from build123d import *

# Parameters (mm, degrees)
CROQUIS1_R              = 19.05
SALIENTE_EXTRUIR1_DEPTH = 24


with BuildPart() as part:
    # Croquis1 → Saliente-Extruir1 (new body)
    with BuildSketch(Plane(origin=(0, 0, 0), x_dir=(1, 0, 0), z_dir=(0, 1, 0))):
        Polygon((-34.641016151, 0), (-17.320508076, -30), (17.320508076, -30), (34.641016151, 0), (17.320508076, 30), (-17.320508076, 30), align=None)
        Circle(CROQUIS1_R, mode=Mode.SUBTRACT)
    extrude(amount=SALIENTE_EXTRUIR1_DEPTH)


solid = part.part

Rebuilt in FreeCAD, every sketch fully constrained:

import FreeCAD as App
import Part
import Sketcher
from FreeCAD import Vector
Q = App.Units.Quantity


def add_polygon(sketch, points):
    """Adds a closed chain of lines whose ends are joined by coincident constraints."""
    first, n = sketch.GeometryCount, len(points)
    for a, b in zip(points, points[1:] + points[:1]):
        sketch.addGeometry(Part.LineSegment(App.Vector(*a, 0), App.Vector(*b, 0)), False)
    for i in range(n):
        sketch.addConstraint(Sketcher.Constraint("Coincident", first + i, 2, first + (i + 1) % n, 1))

doc = App.newDocument("Part")
params = doc.addObject("Spreadsheet::Sheet", "Params")
for row, (alias, value) in enumerate([
    ("sketch1_diameter", "38.1 mm"),
    ("pad1_length", "24 mm"),
], start=1):
    params.set(f"A{row}", alias)
    params.set(f"B{row}", "=" + value)
    params.setAlias(f"B{row}", alias)

body = doc.addObject("PartDesign::Body", "Body")

# Sketch on XZ plane
sketch1 = body.newObject("Sketcher::SketchObject", "Sketch")
sketch1.AttachmentSupport = (doc.getObject("XZ_Plane"), [""])
sketch1.MapMode = "FlatFace"
add_polygon(sketch1, [(-35, 0), (-17, 30), (17, 30), (35, 0), (17, -30), (-17, -30)])  # lines 0-5
sketch1.addGeometry(Part.Circle(Vector(0, 0, 0), Vector(0, 0, 1), 19), False)  # 6
sketch1.addConstraint(Sketcher.Constraint("Horizontal", 1))
sketch1.addConstraint(Sketcher.Constraint("Horizontal", 4))
sketch1.addConstraint(Sketcher.Constraint("Coincident", 6, 3, -1, 1))
sketch1.addConstraint(Sketcher.Constraint("Symmetric", 0, 2, 3, 2, -1, 1))
sketch1.addConstraint(Sketcher.Constraint("Symmetric", 2, 2, 5, 2, -1, 1))
sketch1.addConstraint(Sketcher.Constraint("PointOnObject", 2, 2, -1))
sketch1.addConstraint(Sketcher.Constraint("Parallel", 2, 5))
sketch1.addConstraint(Sketcher.Constraint("Vertical", 1, 2, 3, 2))
sketch1.addConstraint(Sketcher.Constraint("Diameter", 6, 38.1))
sketch1.addConstraint(Sketcher.Constraint("Angle", 0, Q("60 deg")))
sketch1.addConstraint(Sketcher.Constraint("DistanceY", -1, 1, 0, 2, 30.0))
sketch1.addConstraint(Sketcher.Constraint("DistanceX", 1, 1, 1, 2, 34.641016))
sketch1.setExpression("Constraints[14]", "Params.sketch1_diameter")
pad1 = body.newObject("PartDesign::Pad", "Pad")
pad1.Profile = sketch1
pad1.setExpression("Length", "Params.pad1_length")
pad1.Reversed = True

doc.recompute()
